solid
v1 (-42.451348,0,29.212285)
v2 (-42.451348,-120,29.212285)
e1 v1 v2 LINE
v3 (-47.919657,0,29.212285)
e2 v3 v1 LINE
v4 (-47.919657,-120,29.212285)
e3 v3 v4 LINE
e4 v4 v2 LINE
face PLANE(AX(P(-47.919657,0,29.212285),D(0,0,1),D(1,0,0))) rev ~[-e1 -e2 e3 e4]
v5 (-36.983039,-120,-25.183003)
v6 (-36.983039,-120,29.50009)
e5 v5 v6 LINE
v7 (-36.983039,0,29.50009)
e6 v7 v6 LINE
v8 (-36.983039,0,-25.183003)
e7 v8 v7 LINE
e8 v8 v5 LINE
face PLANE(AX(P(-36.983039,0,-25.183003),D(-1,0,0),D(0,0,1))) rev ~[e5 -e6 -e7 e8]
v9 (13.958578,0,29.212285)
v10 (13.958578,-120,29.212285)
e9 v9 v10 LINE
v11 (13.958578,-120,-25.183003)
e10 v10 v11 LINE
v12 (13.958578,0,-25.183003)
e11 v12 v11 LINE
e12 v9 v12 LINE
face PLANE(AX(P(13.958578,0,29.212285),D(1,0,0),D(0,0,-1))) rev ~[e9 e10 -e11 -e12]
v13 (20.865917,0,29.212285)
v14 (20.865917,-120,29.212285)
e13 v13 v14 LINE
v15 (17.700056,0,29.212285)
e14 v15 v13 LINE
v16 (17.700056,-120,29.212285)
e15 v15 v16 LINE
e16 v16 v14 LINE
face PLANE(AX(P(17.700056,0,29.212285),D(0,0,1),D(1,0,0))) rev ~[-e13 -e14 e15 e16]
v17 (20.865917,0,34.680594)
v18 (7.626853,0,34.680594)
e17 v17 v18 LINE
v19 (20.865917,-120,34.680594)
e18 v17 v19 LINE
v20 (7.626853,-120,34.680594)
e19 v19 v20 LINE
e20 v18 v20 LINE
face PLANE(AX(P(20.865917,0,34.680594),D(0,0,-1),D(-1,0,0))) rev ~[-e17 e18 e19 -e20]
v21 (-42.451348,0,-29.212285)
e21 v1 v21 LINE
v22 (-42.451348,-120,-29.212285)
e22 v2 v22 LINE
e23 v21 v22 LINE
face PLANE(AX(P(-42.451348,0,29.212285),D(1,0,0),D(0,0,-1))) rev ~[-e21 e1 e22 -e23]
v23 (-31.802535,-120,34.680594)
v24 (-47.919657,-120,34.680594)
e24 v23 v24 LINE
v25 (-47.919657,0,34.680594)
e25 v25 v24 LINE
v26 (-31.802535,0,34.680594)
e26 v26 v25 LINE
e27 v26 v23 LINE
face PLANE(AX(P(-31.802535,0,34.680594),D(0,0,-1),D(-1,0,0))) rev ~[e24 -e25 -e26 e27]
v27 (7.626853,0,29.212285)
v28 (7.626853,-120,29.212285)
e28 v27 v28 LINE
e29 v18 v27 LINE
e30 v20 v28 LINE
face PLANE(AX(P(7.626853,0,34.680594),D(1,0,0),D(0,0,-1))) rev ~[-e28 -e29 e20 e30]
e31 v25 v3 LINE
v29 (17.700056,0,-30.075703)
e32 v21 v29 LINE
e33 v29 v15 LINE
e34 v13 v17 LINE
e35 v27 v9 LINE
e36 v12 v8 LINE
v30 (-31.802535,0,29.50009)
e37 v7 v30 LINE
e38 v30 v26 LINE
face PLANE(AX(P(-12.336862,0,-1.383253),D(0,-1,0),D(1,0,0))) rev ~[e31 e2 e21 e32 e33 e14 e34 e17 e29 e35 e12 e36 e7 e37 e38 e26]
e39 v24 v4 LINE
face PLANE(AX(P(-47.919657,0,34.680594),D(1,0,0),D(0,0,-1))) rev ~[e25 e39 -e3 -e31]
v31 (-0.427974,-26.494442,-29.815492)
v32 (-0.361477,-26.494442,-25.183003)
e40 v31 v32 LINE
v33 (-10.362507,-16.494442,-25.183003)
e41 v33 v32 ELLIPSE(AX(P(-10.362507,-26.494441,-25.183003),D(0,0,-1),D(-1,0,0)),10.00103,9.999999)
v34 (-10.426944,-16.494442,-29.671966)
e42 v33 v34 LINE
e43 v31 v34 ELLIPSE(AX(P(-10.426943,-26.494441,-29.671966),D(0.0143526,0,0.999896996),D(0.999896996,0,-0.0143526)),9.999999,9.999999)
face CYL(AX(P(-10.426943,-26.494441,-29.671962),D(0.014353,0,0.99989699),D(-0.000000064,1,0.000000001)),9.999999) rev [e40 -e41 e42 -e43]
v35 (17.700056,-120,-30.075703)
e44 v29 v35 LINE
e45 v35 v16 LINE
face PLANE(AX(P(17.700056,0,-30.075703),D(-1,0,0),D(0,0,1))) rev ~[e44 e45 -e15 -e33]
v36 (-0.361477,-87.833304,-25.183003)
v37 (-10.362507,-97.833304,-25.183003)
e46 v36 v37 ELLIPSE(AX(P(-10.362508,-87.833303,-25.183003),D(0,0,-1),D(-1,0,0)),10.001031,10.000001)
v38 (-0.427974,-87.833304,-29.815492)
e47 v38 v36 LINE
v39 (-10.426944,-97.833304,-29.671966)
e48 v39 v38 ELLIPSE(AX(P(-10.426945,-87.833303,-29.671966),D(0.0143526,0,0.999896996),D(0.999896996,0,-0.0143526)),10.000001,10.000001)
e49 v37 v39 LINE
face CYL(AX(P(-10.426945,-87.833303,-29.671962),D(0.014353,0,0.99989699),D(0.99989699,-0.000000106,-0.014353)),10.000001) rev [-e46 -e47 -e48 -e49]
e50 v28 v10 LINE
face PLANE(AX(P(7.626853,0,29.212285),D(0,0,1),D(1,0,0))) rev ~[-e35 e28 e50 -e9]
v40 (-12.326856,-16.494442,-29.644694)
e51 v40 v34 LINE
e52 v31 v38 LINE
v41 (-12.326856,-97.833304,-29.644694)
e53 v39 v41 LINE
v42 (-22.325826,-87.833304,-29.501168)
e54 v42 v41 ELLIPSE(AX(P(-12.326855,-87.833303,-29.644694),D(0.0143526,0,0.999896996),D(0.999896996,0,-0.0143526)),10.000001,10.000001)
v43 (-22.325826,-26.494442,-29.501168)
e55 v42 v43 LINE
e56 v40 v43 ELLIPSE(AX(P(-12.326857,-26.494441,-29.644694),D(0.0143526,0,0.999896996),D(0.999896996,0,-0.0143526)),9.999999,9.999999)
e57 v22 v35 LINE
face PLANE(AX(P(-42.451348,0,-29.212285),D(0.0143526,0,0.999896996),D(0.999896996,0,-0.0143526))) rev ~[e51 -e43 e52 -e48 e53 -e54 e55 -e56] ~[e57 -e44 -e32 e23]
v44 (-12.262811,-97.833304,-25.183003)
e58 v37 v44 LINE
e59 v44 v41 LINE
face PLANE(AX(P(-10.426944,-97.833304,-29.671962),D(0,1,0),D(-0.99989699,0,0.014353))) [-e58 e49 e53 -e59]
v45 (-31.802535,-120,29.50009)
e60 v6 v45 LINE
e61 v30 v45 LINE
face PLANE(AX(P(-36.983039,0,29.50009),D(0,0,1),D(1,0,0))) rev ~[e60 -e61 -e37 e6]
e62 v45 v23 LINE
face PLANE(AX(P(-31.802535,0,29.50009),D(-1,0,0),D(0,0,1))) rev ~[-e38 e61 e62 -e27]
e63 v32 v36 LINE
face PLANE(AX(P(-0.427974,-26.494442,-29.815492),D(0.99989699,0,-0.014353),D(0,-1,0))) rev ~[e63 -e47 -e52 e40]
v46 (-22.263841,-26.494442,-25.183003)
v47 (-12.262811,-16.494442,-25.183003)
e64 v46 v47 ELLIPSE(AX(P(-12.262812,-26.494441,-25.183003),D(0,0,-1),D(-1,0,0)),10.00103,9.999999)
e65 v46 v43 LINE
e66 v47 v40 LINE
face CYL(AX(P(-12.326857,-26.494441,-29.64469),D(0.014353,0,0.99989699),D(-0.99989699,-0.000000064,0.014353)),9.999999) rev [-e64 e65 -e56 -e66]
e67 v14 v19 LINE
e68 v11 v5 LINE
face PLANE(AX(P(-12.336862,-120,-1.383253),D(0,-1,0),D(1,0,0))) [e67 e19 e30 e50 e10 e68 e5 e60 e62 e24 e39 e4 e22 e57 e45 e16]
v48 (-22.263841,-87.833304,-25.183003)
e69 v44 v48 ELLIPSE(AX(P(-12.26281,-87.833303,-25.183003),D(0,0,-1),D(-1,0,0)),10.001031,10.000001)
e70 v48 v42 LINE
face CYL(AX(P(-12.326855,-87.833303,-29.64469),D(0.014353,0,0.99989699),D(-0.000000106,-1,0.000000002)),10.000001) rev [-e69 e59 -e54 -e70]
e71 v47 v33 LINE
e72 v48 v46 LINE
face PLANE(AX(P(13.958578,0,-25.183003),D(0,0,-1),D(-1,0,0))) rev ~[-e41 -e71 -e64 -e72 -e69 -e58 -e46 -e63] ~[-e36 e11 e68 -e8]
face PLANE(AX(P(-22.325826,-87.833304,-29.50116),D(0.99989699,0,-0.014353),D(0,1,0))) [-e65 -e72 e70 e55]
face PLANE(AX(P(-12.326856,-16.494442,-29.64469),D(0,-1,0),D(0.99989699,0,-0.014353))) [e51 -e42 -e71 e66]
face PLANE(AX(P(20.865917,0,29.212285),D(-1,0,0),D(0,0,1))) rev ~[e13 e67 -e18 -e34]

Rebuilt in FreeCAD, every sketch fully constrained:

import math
import FreeCAD as App
import Part
import Sketcher

V = App.Vector
Q = App.Units.Quantity


def add_polygon(sketch, points):
    """Adds a closed chain of lines whose ends are joined by coincident constraints."""
    first, n = sketch.GeometryCount, len(points)
    for a, b in zip(points, points[1:] + points[:1]):
        sketch.addGeometry(Part.LineSegment(App.Vector(*a, 0), App.Vector(*b, 0)), False)
    for i in range(n):
        sketch.addConstraint(Sketcher.Constraint("Coincident", first + i, 2, first + (i + 1) % n, 1))

doc = App.newDocument("Part")
params = doc.addObject("Spreadsheet::Sheet", "Params")
for row, (alias, value) in enumerate([
    ("pad1_length", "120 mm"),
    ("sketch2_radius", "10.000001 mm"),
    ("pocket1_length", "25 mm"),
    ("sketch3_radius", "10.000001 mm"),
    ("pocket2_length", "25 mm"),
], start=1):
    params.set(f"A{row}", alias)
    params.set(f"B{row}", "=" + value)
    params.setAlias(f"B{row}", alias)

body = doc.addObject("PartDesign::Body", "Body")

sketch1 = body.newObject("Sketcher::SketchObject", "Sketch")
sketch1.AttachmentSupport = (doc.getObject("XZ_Plane"), [""])
sketch1.MapMode = "FlatFace"
add_polygon(sketch1, [(-31.802535, 29.50009), (-31.802535, 34.680594), (-47.919657, 34.680594), (-47.919657, 29.212285), (-42.451348, 29.212285), (-42.451348, -29.212285), (17.700056, -30.075703), (17.700056, 29.212285), (20.865917, 29.212285), (20.865917, 34.680594), (7.626853, 34.680594), (7.626853, 29.212285), (13.958578, 29.212285), (13.958578, -25.183003), (-36.983039, -25.183003), (-36.983039, 29.50009)])
sketch1.addConstraint(Sketcher.Constraint("Vertical", 0))
sketch1.addConstraint(Sketcher.Constraint("Horizontal", 1))
sketch1.addConstraint(Sketcher.Constraint("Vertical", 2))
sketch1.addConstraint(Sketcher.Constraint("Horizontal", 3))
sketch1.addConstraint(Sketcher.Constraint("Vertical", 4))
sketch1.addConstraint(Sketcher.Constraint("Vertical", 6))
sketch1.addConstraint(Sketcher.Constraint("Horizontal", 7))
sketch1.addConstraint(Sketcher.Constraint("Vertical", 8))
sketch1.addConstraint(Sketcher.Constraint("Horizontal", 9))
sketch1.addConstraint(Sketcher.Constraint("Vertical", 10))
sketch1.addConstraint(Sketcher.Constraint("Horizontal", 11))
sketch1.addConstraint(Sketcher.Constraint("Vertical", 12))
sketch1.addConstraint(Sketcher.Constraint("Horizontal", 13))
sketch1.addConstraint(Sketcher.Constraint("Vertical", 14))
sketch1.addConstraint(Sketcher.Constraint("Horizontal", 15))
sketch1.addConstraint(Sketcher.Constraint("Horizontal", 3, 2, 6, 2))
sketch1.addConstraint(Sketcher.Constraint("Horizontal", 1, 2, 8, 2))
sketch1.addConstraint(Sketcher.Constraint("Horizontal", 7, 2, 10, 2))
sketch1.addConstraint(Sketcher.Constraint("Equal", 15, 0))
sketch1.addConstraint(Sketcher.Constraint("Equal", 3, 2))
sketch1.addConstraint(Sketcher.Constraint("Distance", 5, Q("60.1576 mm")))
sketch1.addConstraint(Sketcher.Constraint("DistanceX", 3, 1, 3, 2, Q("5.468309 mm")))
sketch1.addConstraint(Sketcher.Constraint("DistanceX", 7, 1, 7, 2, Q("3.165861 mm")))
sketch1.addConstraint(Sketcher.Constraint("DistanceY", 4, 2, 4, 1, Q("58.42457 mm")))
sketch1.addConstraint(Sketcher.Constraint("DistanceX", 3, 2, 9, 2, Q("50.078201 mm")))
sketch1.addConstraint(Sketcher.Constraint("DistanceY", 5, 2, 12, 2, Q("4.8927 mm")))
sketch1.addConstraint(Sketcher.Constraint("DistanceX", 1, 2, 1, 1, Q("16.117122 mm")))
sketch1.addConstraint(Sketcher.Constraint("DistanceX", 9, 2, 9, 1, Q("13.239064 mm")))
sketch1.addConstraint(Sketcher.Constraint("DistanceX", 11, 1, 11, 2, Q("6.331725 mm")))
sketch1.addConstraint(Sketcher.Constraint("DistanceX", 13, 2, 13, 1, Q("50.941617 mm")))
sketch1.addConstraint(Sketcher.Constraint("DistanceX", 3, 2, -1, 1, Q("42.451348 mm")))
sketch1.addConstraint(Sketcher.Constraint("DistanceY", -1, 1, 14, 2, Q("29.50009 mm")))
pad1 = body.newObject("PartDesign::Pad", "Pad")
pad1.Profile = sketch1
pad1.setExpression("Length", "Params.pad1_length")

sketch2 = body.newObject("Sketcher::SketchObject", "Sketch001")
sketch2.Placement = App.Placement(V(-0.427974, 0, -29.815492), App.Rotation(V(0.99989699, 0, -0.014353), V(0, -0.999999999, 0), V(-0.014353, 0, -0.99989699), "ZXY"))
sketch2.addGeometry(Part.LineSegment(V(-10, 97.8, 0), V(-11.9, 97.8, 0)), False)
sketch2.addGeometry(Part.ArcOfCircle(Part.Circle(V(-11.9, 87.8, 0), V(0, 0, 1), 10), math.radians(90), math.radians(180)), False)
sketch2.addGeometry(Part.LineSegment(V(-21.9, 87.8, 0), V(-21.9, 26.5, 0)), False)
sketch2.addGeometry(Part.ArcOfCircle(Part.Circle(V(-11.9, 26.5, 0), V(0, 0, 1), 10), math.radians(180), math.radians(270)), False)
sketch2.addGeometry(Part.LineSegment(V(-11.9, 16.5, 0), V(-10, 16.5, 0)), False)
sketch2.addGeometry(Part.ArcOfCircle(Part.Circle(V(-10, 26.5, 0), V(0, 0, 1), 10), math.radians(-90), math.radians(0)), False)
sketch2.addGeometry(Part.LineSegment(V(0, 26.5, 0), V(0, 87.8, 0)), False)
sketch2.addGeometry(Part.ArcOfCircle(Part.Circle(V(-10, 87.8, 0), V(0, 0, 1), 10), math.radians(0), math.radians(90)), False)
sketch2.addConstraint(Sketcher.Constraint("Tangent", 0, 2, 1, 1))
sketch2.addConstraint(Sketcher.Constraint("Tangent", 1, 2, 2, 1))
sketch2.addConstraint(Sketcher.Constraint("Tangent", 2, 2, 3, 1))
sketch2.addConstraint(Sketcher.Constraint("Tangent", 3, 2, 4, 1))
sketch2.addConstraint(Sketcher.Constraint("Tangent", 4, 2, 5, 1))
sketch2.addConstraint(Sketcher.Constraint("Tangent", 5, 2, 6, 1))
sketch2.addConstraint(Sketcher.Constraint("Tangent", 6, 2, 7, 1))
sketch2.addConstraint(Sketcher.Constraint("Tangent", 7, 2, 0, 1))
sketch2.addConstraint(Sketcher.Constraint("Horizontal", 0))
sketch2.addConstraint(Sketcher.Constraint("Vertical", 2))
sketch2.addConstraint(Sketcher.Constraint("Horizontal", 4))
sketch2.addConstraint(Sketcher.Constraint("Vertical", 6))
sketch2.addConstraint(Sketcher.Constraint("Equal", 1, 3))
sketch2.addConstraint(Sketcher.Constraint("Equal", 3, 5))
sketch2.addConstraint(Sketcher.Constraint("Equal", 5, 7))
sketch2.addConstraint(Sketcher.Constraint("PointOnObject", 5, 2, -2))
sketch2.addConstraint(Sketcher.Constraint("Radius", 1, Q("10.000001 mm")))
sketch2.addConstraint(Sketcher.Constraint("DistanceY", 2, 2, 2, 1, Q("61.338862 mm")))
sketch2.addConstraint(Sketcher.Constraint("DistanceX", 0, 2, 0, 1, Q("1.900108 mm")))
sketch2.addConstraint(Sketcher.Constraint("DistanceY", -1, 1, 3, 3, Q("26.494441 mm")))
sketch2.setExpression("Constraints[16]", "Params.sketch2_radius")
pocket1 = body.newObject("PartDesign::Pocket", "Pocket")
pocket1.Profile = sketch2
pocket1.setExpression("Length", "Params.pocket1_length")
pocket1.Reversed = True

sketch3 = body.newObject("Sketcher::SketchObject", "Sketch002")
sketch3.Placement = App.Placement(V(-0.427974, 0, -29.815492), App.Rotation(V(0.99989699, 0, -0.014353), V(0, -0.999999999, 0), V(-0.014353, 0, -0.99989699), "ZXY"))
sketch3.addGeometry(Part.LineSegment(V(-10, 97.8, 0), V(-11.9, 97.8, 0)), False)
sketch3.addGeometry(Part.ArcOfCircle(Part.Circle(V(-11.9, 87.8, 0), V(0, 0, 1), 10), math.radians(90), math.radians(180)), False)
sketch3.addGeometry(Part.LineSegment(V(-21.9, 87.8, 0), V(-21.9, 26.5, 0)), False)
sketch3.addGeometry(Part.ArcOfCircle(Part.Circle(V(-11.9, 26.5, 0), V(0, 0, 1), 10), math.radians(180), math.radians(270)), False)
sketch3.addGeometry(Part.LineSegment(V(-11.9, 16.5, 0), V(-10, 16.5, 0)), False)
sketch3.addGeometry(Part.ArcOfCircle(Part.Circle(V(-10, 26.5, 0), V(0, 0, 1), 10), math.radians(-90), math.radians(0)), False)
sketch3.addGeometry(Part.LineSegment(V(0, 26.5, 0), V(0, 87.8, 0)), False)
sketch3.addGeometry(Part.ArcOfCircle(Part.Circle(V(-10, 87.8, 0), V(0, 0, 1), 10), math.radians(0), math.radians(90)), False)
sketch3.addConstraint(Sketcher.Constraint("Tangent", 0, 2, 1, 1))
sketch3.addConstraint(Sketcher.Constraint("Tangent", 1, 2, 2, 1))
sketch3.addConstraint(Sketcher.Constraint("Tangent", 2, 2, 3, 1))
sketch3.addConstraint(Sketcher.Constraint("Tangent", 3, 2, 4, 1))
sketch3.addConstraint(Sketcher.Constraint("Tangent", 4, 2, 5, 1))
sketch3.addConstraint(Sketcher.Constraint("Tangent", 5, 2, 6, 1))
sketch3.addConstraint(Sketcher.Constraint("Tangent", 6, 2, 7, 1))
sketch3.addConstraint(Sketcher.Constraint("Tangent", 7, 2, 0, 1))
sketch3.addConstraint(Sketcher.Constraint("Horizontal", 0))
sketch3.addConstraint(Sketcher.Constraint("Vertical", 2))
sketch3.addConstraint(Sketcher.Constraint("Horizontal", 4))
sketch3.addConstraint(Sketcher.Constraint("Vertical", 6))
sketch3.addConstraint(Sketcher.Constraint("Equal", 1, 3))
sketch3.addConstraint(Sketcher.Constraint("Equal", 3, 5))
sketch3.addConstraint(Sketcher.Constraint("Equal", 5, 7))
sketch3.addConstraint(Sketcher.Constraint("PointOnObject", 5, 2, -2))
sketch3.addConstraint(Sketcher.Constraint("Radius", 1, Q("10.000001 mm")))
sketch3.addConstraint(Sketcher.Constraint("DistanceY", 2, 2, 2, 1, Q("61.338862 mm")))
sketch3.addConstraint(Sketcher.Constraint("DistanceX", 0, 2, 0, 1, Q("1.900108 mm")))
sketch3.addConstraint(Sketcher.Constraint("DistanceY", -1, 1, 3, 3, Q("26.494441 mm")))
sketch3.setExpression("Constraints[16]", "Params.sketch3_radius")
pocket2 = body.newObject("PartDesign::Pocket", "Pocket001")
pocket2.Profile = sketch3
pocket2.setExpression("Length", "Params.pocket2_length")

doc.recompute()
